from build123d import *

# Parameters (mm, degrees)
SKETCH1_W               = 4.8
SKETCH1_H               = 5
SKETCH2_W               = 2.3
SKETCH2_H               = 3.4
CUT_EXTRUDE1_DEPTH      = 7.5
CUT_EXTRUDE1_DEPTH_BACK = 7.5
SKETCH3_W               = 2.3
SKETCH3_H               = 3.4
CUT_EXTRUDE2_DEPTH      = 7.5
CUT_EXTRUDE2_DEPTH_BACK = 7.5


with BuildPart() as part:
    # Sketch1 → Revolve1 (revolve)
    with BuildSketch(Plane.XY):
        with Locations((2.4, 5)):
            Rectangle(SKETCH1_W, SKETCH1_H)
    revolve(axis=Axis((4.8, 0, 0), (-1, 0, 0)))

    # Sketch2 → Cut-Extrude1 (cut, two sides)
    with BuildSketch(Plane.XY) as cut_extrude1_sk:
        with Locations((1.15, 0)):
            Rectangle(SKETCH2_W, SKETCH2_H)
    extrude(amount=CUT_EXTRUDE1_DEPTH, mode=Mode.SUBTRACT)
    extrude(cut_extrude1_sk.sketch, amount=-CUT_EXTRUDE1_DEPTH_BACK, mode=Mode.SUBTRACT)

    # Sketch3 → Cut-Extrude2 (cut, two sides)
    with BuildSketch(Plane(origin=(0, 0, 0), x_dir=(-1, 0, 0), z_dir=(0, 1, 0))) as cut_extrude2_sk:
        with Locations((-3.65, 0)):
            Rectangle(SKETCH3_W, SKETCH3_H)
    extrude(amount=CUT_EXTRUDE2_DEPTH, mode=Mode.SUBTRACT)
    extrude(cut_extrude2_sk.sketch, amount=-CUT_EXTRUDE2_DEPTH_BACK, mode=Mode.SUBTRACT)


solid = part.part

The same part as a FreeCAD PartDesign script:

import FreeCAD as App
import Part
import Sketcher
from FreeCAD import Vector

doc = App.newDocument("Part")
body = doc.addObject("PartDesign::Body", "Body")

# Sketch on XY plane
sketch1 = body.newObject("Sketcher::SketchObject", "Sketch")
sketch1.AttachmentSupport = (doc.getObject("XY_Plane"), [""])
sketch1.MapMode = "FlatFace"
sketch1.addGeometry([
    Part.LineSegment(Vector(0, 7.5, 0), Vector(0, 2.5, 0)),
    Part.LineSegment(Vector(0, 2.5, 0), Vector(4.8, 2.5, 0)),
    Part.LineSegment(Vector(4.8, 2.5, 0), Vector(4.8, 7.5, 0)),
    Part.LineSegment(Vector(4.8, 7.5, 0), Vector(0, 7.5, 0)),
], False)
sketch1.addConstraint([
    Sketcher.Constraint("Coincident", 0, 2, 1, 1),
    Sketcher.Constraint("Coincident", 1, 2, 2, 1),
    Sketcher.Constraint("Coincident", 2, 2, 3, 1),
    Sketcher.Constraint("Coincident", 3, 2, 0, 1),
    Sketcher.Constraint("Vertical", 0),
    Sketcher.Constraint("Horizontal", 1),
    Sketcher.Constraint("Vertical", 2),
    Sketcher.Constraint("Horizontal", 3),
    Sketcher.Constraint("PointOnObject", 0, 2, -2),
    Sketcher.Constraint("DistanceY", 0, 2, 0, 1, 5.0),
    Sketcher.Constraint("DistanceX", 1, 1, 1, 2, 4.8),
    Sketcher.Constraint("DistanceY", -1, 1, 0, 2, 2.5),
])
revolution = body.newObject("PartDesign::Revolution", "Revolution")
revolution.Profile = sketch1
revolution.ReferenceAxis = (sketch1, ["H_Axis"])
revolution.Angle = 360

# Sketch on XY plane
sketch2 = body.newObject("Sketcher::SketchObject", "Sketch001")
sketch2.AttachmentSupport = (doc.getObject("XY_Plane"), [""])
sketch2.MapMode = "FlatFace"
sketch2.addGeometry([
    Part.LineSegment(Vector(0, 1.7, 0), Vector(0, -1.7, 0)),
    Part.LineSegment(Vector(0, -1.7, 0), Vector(2.3, -1.7, 0)),
    Part.LineSegment(Vector(2.3, -1.7, 0), Vector(2.3, 1.7, 0)),
    Part.LineSegment(Vector(2.3, 1.7, 0), Vector(0, 1.7, 0)),
], False)
sketch2.addConstraint([
    Sketcher.Constraint("Coincident", 0, 2, 1, 1),
    Sketcher.Constraint("Coincident", 1, 2, 2, 1),
    Sketcher.Constraint("Coincident", 2, 2, 3, 1),
    Sketcher.Constraint("Coincident", 3, 2, 0, 1),
    Sketcher.Constraint("Vertical", 0),
    Sketcher.Constraint("Horizontal", 1),
    Sketcher.Constraint("Vertical", 2),
    Sketcher.Constraint("Horizontal", 3),
    Sketcher.Constraint("Symmetric", 0, 2, 3, 2, -1, 1),
    Sketcher.Constraint("DistanceX", 1, 1, 1, 2, 2.3),
    Sketcher.Constraint("DistanceY", 0, 2, 0, 1, 3.4),
])
pocket1 = body.newObject("PartDesign::Pocket", "Pocket")
pocket1.Profile = sketch2
pocket1.Type = "ThroughAll"
pocket1.Midplane = True

# Sketch on XZ plane
sketch3 = body.newObject("Sketcher::SketchObject", "Sketch002")
sketch3.AttachmentSupport = (doc.getObject("XZ_Plane"), [""])
sketch3.MapMode = "FlatFace"
sketch3.addGeometry([
    Part.LineSegment(Vector(4.8, 1.7, 0), Vector(4.8, -1.7, 0)),
    Part.LineSegment(Vector(4.8, -1.7, 0), Vector(2.5, -1.7, 0)),
    Part.LineSegment(Vector(2.5, -1.7, 0), Vector(2.5, 1.7, 0)),
    Part.LineSegment(Vector(2.5, 1.7, 0), Vector(4.8, 1.7, 0)),
], False)
sketch3.addConstraint([
    Sketcher.Constraint("Coincident", 0, 2, 1, 1),
    Sketcher.Constraint("Coincident", 1, 2, 2, 1),
    Sketcher.Constraint("Coincident", 2, 2, 3, 1),
    Sketcher.Constraint("Coincident", 3, 2, 0, 1),
    Sketcher.Constraint("Vertical", 0),
    Sketcher.Constraint("Horizontal", 1),
    Sketcher.Constraint("Vertical", 2),
    Sketcher.Constraint("Horizontal", 3),
    Sketcher.Constraint("DistanceX", 1, 2, 1, 1, 2.3),
    Sketcher.Constraint("DistanceY", 0, 2, 0, 1, 3.4),
    Sketcher.Constraint("DistanceX", -1, 1, 0, 2, 4.8),
    Sketcher.Constraint("DistanceY", 0, 2, -1, 1, 1.7),
])
pocket2 = body.newObject("PartDesign::Pocket", "Pocket001")
pocket2.Profile = sketch3
pocket2.Type = "ThroughAll"
pocket2.Midplane = True

doc.recompute()
